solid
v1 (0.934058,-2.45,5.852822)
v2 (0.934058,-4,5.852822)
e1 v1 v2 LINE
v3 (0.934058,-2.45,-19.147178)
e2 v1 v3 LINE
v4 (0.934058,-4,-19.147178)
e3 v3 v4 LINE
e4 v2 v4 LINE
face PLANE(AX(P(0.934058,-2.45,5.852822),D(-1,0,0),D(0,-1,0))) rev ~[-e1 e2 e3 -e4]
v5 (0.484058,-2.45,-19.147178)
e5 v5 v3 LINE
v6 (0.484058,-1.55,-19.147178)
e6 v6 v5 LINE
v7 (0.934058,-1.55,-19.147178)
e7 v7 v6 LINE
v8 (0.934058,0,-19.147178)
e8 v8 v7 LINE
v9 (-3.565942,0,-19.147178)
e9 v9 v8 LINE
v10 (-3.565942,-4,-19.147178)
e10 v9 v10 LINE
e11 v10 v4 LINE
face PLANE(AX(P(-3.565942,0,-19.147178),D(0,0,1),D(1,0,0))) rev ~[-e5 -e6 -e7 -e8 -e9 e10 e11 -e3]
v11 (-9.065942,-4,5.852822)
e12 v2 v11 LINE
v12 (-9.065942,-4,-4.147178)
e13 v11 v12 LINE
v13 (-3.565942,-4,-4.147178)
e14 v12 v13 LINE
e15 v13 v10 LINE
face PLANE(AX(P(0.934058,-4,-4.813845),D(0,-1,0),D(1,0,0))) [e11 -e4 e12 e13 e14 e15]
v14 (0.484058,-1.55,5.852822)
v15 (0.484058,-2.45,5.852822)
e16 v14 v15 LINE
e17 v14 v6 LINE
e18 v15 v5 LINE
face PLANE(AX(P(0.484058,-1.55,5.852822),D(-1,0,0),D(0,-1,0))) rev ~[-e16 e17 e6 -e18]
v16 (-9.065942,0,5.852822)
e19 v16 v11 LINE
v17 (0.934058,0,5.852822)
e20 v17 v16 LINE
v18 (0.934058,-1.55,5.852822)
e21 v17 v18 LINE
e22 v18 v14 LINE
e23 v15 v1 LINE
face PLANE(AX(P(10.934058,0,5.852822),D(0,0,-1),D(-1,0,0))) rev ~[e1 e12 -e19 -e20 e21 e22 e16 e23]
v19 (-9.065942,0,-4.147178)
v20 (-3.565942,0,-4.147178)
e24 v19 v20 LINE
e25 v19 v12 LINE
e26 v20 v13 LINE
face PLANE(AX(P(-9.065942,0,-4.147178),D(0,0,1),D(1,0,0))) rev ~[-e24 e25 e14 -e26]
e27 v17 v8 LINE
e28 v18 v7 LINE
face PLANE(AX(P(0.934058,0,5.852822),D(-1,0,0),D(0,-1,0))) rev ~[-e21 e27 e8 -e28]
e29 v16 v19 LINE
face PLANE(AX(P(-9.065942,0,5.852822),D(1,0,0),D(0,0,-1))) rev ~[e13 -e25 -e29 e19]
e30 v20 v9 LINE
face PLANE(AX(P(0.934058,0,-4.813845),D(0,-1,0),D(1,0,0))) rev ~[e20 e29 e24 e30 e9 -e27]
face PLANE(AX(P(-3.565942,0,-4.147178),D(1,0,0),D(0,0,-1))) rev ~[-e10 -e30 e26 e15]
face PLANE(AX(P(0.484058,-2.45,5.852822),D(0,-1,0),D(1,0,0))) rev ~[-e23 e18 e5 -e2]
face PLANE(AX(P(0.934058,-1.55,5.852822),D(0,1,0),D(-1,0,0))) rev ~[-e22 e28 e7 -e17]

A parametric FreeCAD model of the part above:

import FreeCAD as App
import Part
import Sketcher

V = App.Vector
Q = App.Units.Quantity


def add_polygon(sketch, points):
    """Adds a closed chain of lines whose ends are joined by coincident constraints."""
    first, n = sketch.GeometryCount, len(points)
    for a, b in zip(points, points[1:] + points[:1]):
        sketch.addGeometry(Part.LineSegment(App.Vector(*a, 0), App.Vector(*b, 0)), False)
    for i in range(n):
        sketch.addConstraint(Sketcher.Constraint("Coincident", first + i, 2, first + (i + 1) % n, 1))

doc = App.newDocument("Part")
params = doc.addObject("Spreadsheet::Sheet", "Params")
for row, (alias, value) in enumerate([
    ("sketch1_width", "20 mm"),
    ("sketch1_width2", "9 mm"),
    ("sketch1_height", "10 mm"),
    ("sketch1_height2", "15 mm"),
    ("pad1_length", "4 mm"),
    ("sketch2_width", "10 mm"),
    ("sketch2_height", "4 mm"),
    ("sketch2_height2", "0.9 mm"),
    ("sketch2_width2", "0.45 mm"),
    ("pocket1_length", "25 mm"),
], start=1):
    params.set(f"A{row}", alias)
    params.set(f"B{row}", "=" + value)
    params.setAlias(f"B{row}", alias)

body = doc.addObject("PartDesign::Body", "Body")

# Sketch on XZ plane
sketch1 = doc.addObject("Sketcher::SketchObject", "Sketch")
body.addObject(sketch1)
sketch1.AttachmentSupport = (doc.XZ_Plane, [""])
sketch1.MapMode = "FlatFace"
add_polygon(sketch1, [(10.934058, -4.147178), (10.934058, 5.852822), (-9.065942, 5.852822), (-9.065942, -4.147178), (-3.565942, -4.147178), (-3.565942, -19.147178), (5.434058, -19.147178), (5.434058, -4.147178)])  # lines 0-7
sketch1.addConstraint(Sketcher.Constraint("Vertical", 0))
sketch1.addConstraint(Sketcher.Constraint("Horizontal", 1))
sketch1.addConstraint(Sketcher.Constraint("Vertical", 2))
sketch1.addConstraint(Sketcher.Constraint("Horizontal", 3))
sketch1.addConstraint(Sketcher.Constraint("Vertical", 4))
sketch1.addConstraint(Sketcher.Constraint("Horizontal", 5))
sketch1.addConstraint(Sketcher.Constraint("Vertical", 6))
sketch1.addConstraint(Sketcher.Constraint("Horizontal", 7))
sketch1.addConstraint(Sketcher.Constraint("Horizontal", 3, 2, 6, 2))
sketch1.addConstraint(Sketcher.Constraint("Equal", 3, 7))
sketch1.addConstraint(Sketcher.Constraint("DistanceX", 1, 2, 1, 1, Q("20 mm")))
sketch1.addConstraint(Sketcher.Constraint("DistanceX", 5, 1, 5, 2, Q("9 mm")))
sketch1.addConstraint(Sketcher.Constraint("DistanceY", 0, 1, 0, 2, Q("10 mm")))
sketch1.addConstraint(Sketcher.Constraint("DistanceY", 4, 2, 4, 1, Q("15 mm")))
sketch1.addConstraint(Sketcher.Constraint("DistanceY", -1, 1, 0, 2, Q("5.852822 mm")))
sketch1.addConstraint(Sketcher.Constraint("DistanceX", -1, 1, 5, 2, Q("5.434058 mm")))
sketch1.setExpression("Constraints[18]", "Params.sketch1_width")
sketch1.setExpression("Constraints[19]", "Params.sketch1_width2")
sketch1.setExpression("Constraints[20]", "Params.sketch1_height")
sketch1.setExpression("Constraints[21]", "Params.sketch1_height2")
pad1 = doc.addObject("PartDesign::Pad", "Pad")
body.addObject(pad1)
pad1.Profile = sketch1
pad1.setExpression("Length", "Params.pad1_length")

# Sketch on XY plane
sketch2 = doc.addObject("Sketcher::SketchObject", "Sketch001")
body.addObject(sketch2)
sketch2.AttachmentSupport = (doc.XY_Plane, [""])
sketch2.MapMode = "FlatFace"
sketch2.AttachmentOffset = App.Placement(V(0, 0, 5.852822), App.Rotation())
add_polygon(sketch2, [(10.934058, -4), (10.934058, 0), (0.934058, 0), (0.934058, -1.55), (0.484058, -1.55), (0.484058, -2.45), (0.934058, -2.45), (0.934058, -4)])  # lines 0-7
sketch2.addConstraint(Sketcher.Constraint("Vertical", 0))
sketch2.addConstraint(Sketcher.Constraint("Horizontal", 1))
sketch2.addConstraint(Sketcher.Constraint("Vertical", 2))
sketch2.addConstraint(Sketcher.Constraint("Horizontal", 3))
sketch2.addConstraint(Sketcher.Constraint("Vertical", 4))
sketch2.addConstraint(Sketcher.Constraint("Horizontal", 5))
sketch2.addConstraint(Sketcher.Constraint("Vertical", 6))
sketch2.addConstraint(Sketcher.Constraint("Horizontal", 7))
sketch2.addConstraint(Sketcher.Constraint("PointOnObject", 0, 2, -1))
sketch2.addConstraint(Sketcher.Constraint("Vertical", 2, 2, 5, 2))
sketch2.addConstraint(Sketcher.Constraint("Equal", 2, 6))
sketch2.addConstraint(Sketcher.Constraint("DistanceX", 1, 2, 1, 1, Q("10 mm")))
sketch2.addConstraint(Sketcher.Constraint("DistanceY", 0, 1, 0, 2, Q("4 mm")))
sketch2.addConstraint(Sketcher.Constraint("DistanceY", 4, 2, 4, 1, Q("0.9 mm")))
sketch2.addConstraint(Sketcher.Constraint("DistanceX", 3, 2, 3, 1, Q("0.45 mm")))
sketch2.addConstraint(Sketcher.Constraint("DistanceX", -1, 1, 1, 2, Q("0.934058 mm")))
sketch2.setExpression("Constraints[19]", "Params.sketch2_width")
sketch2.setExpression("Constraints[20]", "Params.sketch2_height")
sketch2.setExpression("Constraints[21]", "Params.sketch2_height2")
sketch2.setExpression("Constraints[22]", "Params.sketch2_width2")
pocket1 = doc.addObject("PartDesign::Pocket", "Pocket")
body.addObject(pocket1)
pocket1.Profile = sketch2
pocket1.setExpression("Length", "Params.pocket1_length")

doc.recompute()
